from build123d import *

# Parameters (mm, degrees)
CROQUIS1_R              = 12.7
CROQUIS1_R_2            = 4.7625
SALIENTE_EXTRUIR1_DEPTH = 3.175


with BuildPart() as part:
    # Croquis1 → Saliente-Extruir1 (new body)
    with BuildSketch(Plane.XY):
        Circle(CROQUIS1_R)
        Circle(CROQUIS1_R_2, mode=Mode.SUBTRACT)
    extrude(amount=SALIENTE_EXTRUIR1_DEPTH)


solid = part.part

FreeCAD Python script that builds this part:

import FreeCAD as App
import Part
import Sketcher

V = App.Vector
Q = App.Units.Quantity

doc = App.newDocument("Part")
params = doc.addObject("Spreadsheet::Sheet", "Params")
for row, (alias, value) in enumerate([
    ("sketch1_diameter", "1 in"),
    ("sketch1_diameter2", "0.375 in"),
    ("pad1_length", "0.125 in"),
], start=1):
    params.set(f"A{row}", alias)
    params.set(f"B{row}", "=" + value)
    params.setAlias(f"B{row}", alias)

body = doc.addObject("PartDesign::Body", "Body")

sketch1 = body.newObject("Sketcher::SketchObject", "Sketch")
sketch1.AttachmentSupport = (doc.getObject("XY_Plane"), [""])
sketch1.MapMode = "FlatFace"
sketch1.addGeometry(Part.Circle(V(0, 0, 0), V(0, 0, 1), 12.7), False)
sketch1.addGeometry(Part.Circle(V(0, 0, 0), V(0, 0, 1), 4.8), False)
sketch1.addConstraint(Sketcher.Constraint("Coincident", 0, 3, -1, 1))
sketch1.addConstraint(Sketcher.Constraint("Coincident", 1, 3, -1, 1))
sketch1.addConstraint(Sketcher.Constraint("Diameter", 0, Q("1 in")))
sketch1.addConstraint(Sketcher.Constraint("Diameter", 1, Q("0.375 in")))
sketch1.setExpression("Constraints[2]", "Params.sketch1_diameter")
sketch1.setExpression("Constraints[3]", "Params.sketch1_diameter2")
pad1 = body.newObject("PartDesign::Pad", "Pad")
pad1.Profile = sketch1
pad1.setExpression("Length", "Params.pad1_length")

doc.recompute()
